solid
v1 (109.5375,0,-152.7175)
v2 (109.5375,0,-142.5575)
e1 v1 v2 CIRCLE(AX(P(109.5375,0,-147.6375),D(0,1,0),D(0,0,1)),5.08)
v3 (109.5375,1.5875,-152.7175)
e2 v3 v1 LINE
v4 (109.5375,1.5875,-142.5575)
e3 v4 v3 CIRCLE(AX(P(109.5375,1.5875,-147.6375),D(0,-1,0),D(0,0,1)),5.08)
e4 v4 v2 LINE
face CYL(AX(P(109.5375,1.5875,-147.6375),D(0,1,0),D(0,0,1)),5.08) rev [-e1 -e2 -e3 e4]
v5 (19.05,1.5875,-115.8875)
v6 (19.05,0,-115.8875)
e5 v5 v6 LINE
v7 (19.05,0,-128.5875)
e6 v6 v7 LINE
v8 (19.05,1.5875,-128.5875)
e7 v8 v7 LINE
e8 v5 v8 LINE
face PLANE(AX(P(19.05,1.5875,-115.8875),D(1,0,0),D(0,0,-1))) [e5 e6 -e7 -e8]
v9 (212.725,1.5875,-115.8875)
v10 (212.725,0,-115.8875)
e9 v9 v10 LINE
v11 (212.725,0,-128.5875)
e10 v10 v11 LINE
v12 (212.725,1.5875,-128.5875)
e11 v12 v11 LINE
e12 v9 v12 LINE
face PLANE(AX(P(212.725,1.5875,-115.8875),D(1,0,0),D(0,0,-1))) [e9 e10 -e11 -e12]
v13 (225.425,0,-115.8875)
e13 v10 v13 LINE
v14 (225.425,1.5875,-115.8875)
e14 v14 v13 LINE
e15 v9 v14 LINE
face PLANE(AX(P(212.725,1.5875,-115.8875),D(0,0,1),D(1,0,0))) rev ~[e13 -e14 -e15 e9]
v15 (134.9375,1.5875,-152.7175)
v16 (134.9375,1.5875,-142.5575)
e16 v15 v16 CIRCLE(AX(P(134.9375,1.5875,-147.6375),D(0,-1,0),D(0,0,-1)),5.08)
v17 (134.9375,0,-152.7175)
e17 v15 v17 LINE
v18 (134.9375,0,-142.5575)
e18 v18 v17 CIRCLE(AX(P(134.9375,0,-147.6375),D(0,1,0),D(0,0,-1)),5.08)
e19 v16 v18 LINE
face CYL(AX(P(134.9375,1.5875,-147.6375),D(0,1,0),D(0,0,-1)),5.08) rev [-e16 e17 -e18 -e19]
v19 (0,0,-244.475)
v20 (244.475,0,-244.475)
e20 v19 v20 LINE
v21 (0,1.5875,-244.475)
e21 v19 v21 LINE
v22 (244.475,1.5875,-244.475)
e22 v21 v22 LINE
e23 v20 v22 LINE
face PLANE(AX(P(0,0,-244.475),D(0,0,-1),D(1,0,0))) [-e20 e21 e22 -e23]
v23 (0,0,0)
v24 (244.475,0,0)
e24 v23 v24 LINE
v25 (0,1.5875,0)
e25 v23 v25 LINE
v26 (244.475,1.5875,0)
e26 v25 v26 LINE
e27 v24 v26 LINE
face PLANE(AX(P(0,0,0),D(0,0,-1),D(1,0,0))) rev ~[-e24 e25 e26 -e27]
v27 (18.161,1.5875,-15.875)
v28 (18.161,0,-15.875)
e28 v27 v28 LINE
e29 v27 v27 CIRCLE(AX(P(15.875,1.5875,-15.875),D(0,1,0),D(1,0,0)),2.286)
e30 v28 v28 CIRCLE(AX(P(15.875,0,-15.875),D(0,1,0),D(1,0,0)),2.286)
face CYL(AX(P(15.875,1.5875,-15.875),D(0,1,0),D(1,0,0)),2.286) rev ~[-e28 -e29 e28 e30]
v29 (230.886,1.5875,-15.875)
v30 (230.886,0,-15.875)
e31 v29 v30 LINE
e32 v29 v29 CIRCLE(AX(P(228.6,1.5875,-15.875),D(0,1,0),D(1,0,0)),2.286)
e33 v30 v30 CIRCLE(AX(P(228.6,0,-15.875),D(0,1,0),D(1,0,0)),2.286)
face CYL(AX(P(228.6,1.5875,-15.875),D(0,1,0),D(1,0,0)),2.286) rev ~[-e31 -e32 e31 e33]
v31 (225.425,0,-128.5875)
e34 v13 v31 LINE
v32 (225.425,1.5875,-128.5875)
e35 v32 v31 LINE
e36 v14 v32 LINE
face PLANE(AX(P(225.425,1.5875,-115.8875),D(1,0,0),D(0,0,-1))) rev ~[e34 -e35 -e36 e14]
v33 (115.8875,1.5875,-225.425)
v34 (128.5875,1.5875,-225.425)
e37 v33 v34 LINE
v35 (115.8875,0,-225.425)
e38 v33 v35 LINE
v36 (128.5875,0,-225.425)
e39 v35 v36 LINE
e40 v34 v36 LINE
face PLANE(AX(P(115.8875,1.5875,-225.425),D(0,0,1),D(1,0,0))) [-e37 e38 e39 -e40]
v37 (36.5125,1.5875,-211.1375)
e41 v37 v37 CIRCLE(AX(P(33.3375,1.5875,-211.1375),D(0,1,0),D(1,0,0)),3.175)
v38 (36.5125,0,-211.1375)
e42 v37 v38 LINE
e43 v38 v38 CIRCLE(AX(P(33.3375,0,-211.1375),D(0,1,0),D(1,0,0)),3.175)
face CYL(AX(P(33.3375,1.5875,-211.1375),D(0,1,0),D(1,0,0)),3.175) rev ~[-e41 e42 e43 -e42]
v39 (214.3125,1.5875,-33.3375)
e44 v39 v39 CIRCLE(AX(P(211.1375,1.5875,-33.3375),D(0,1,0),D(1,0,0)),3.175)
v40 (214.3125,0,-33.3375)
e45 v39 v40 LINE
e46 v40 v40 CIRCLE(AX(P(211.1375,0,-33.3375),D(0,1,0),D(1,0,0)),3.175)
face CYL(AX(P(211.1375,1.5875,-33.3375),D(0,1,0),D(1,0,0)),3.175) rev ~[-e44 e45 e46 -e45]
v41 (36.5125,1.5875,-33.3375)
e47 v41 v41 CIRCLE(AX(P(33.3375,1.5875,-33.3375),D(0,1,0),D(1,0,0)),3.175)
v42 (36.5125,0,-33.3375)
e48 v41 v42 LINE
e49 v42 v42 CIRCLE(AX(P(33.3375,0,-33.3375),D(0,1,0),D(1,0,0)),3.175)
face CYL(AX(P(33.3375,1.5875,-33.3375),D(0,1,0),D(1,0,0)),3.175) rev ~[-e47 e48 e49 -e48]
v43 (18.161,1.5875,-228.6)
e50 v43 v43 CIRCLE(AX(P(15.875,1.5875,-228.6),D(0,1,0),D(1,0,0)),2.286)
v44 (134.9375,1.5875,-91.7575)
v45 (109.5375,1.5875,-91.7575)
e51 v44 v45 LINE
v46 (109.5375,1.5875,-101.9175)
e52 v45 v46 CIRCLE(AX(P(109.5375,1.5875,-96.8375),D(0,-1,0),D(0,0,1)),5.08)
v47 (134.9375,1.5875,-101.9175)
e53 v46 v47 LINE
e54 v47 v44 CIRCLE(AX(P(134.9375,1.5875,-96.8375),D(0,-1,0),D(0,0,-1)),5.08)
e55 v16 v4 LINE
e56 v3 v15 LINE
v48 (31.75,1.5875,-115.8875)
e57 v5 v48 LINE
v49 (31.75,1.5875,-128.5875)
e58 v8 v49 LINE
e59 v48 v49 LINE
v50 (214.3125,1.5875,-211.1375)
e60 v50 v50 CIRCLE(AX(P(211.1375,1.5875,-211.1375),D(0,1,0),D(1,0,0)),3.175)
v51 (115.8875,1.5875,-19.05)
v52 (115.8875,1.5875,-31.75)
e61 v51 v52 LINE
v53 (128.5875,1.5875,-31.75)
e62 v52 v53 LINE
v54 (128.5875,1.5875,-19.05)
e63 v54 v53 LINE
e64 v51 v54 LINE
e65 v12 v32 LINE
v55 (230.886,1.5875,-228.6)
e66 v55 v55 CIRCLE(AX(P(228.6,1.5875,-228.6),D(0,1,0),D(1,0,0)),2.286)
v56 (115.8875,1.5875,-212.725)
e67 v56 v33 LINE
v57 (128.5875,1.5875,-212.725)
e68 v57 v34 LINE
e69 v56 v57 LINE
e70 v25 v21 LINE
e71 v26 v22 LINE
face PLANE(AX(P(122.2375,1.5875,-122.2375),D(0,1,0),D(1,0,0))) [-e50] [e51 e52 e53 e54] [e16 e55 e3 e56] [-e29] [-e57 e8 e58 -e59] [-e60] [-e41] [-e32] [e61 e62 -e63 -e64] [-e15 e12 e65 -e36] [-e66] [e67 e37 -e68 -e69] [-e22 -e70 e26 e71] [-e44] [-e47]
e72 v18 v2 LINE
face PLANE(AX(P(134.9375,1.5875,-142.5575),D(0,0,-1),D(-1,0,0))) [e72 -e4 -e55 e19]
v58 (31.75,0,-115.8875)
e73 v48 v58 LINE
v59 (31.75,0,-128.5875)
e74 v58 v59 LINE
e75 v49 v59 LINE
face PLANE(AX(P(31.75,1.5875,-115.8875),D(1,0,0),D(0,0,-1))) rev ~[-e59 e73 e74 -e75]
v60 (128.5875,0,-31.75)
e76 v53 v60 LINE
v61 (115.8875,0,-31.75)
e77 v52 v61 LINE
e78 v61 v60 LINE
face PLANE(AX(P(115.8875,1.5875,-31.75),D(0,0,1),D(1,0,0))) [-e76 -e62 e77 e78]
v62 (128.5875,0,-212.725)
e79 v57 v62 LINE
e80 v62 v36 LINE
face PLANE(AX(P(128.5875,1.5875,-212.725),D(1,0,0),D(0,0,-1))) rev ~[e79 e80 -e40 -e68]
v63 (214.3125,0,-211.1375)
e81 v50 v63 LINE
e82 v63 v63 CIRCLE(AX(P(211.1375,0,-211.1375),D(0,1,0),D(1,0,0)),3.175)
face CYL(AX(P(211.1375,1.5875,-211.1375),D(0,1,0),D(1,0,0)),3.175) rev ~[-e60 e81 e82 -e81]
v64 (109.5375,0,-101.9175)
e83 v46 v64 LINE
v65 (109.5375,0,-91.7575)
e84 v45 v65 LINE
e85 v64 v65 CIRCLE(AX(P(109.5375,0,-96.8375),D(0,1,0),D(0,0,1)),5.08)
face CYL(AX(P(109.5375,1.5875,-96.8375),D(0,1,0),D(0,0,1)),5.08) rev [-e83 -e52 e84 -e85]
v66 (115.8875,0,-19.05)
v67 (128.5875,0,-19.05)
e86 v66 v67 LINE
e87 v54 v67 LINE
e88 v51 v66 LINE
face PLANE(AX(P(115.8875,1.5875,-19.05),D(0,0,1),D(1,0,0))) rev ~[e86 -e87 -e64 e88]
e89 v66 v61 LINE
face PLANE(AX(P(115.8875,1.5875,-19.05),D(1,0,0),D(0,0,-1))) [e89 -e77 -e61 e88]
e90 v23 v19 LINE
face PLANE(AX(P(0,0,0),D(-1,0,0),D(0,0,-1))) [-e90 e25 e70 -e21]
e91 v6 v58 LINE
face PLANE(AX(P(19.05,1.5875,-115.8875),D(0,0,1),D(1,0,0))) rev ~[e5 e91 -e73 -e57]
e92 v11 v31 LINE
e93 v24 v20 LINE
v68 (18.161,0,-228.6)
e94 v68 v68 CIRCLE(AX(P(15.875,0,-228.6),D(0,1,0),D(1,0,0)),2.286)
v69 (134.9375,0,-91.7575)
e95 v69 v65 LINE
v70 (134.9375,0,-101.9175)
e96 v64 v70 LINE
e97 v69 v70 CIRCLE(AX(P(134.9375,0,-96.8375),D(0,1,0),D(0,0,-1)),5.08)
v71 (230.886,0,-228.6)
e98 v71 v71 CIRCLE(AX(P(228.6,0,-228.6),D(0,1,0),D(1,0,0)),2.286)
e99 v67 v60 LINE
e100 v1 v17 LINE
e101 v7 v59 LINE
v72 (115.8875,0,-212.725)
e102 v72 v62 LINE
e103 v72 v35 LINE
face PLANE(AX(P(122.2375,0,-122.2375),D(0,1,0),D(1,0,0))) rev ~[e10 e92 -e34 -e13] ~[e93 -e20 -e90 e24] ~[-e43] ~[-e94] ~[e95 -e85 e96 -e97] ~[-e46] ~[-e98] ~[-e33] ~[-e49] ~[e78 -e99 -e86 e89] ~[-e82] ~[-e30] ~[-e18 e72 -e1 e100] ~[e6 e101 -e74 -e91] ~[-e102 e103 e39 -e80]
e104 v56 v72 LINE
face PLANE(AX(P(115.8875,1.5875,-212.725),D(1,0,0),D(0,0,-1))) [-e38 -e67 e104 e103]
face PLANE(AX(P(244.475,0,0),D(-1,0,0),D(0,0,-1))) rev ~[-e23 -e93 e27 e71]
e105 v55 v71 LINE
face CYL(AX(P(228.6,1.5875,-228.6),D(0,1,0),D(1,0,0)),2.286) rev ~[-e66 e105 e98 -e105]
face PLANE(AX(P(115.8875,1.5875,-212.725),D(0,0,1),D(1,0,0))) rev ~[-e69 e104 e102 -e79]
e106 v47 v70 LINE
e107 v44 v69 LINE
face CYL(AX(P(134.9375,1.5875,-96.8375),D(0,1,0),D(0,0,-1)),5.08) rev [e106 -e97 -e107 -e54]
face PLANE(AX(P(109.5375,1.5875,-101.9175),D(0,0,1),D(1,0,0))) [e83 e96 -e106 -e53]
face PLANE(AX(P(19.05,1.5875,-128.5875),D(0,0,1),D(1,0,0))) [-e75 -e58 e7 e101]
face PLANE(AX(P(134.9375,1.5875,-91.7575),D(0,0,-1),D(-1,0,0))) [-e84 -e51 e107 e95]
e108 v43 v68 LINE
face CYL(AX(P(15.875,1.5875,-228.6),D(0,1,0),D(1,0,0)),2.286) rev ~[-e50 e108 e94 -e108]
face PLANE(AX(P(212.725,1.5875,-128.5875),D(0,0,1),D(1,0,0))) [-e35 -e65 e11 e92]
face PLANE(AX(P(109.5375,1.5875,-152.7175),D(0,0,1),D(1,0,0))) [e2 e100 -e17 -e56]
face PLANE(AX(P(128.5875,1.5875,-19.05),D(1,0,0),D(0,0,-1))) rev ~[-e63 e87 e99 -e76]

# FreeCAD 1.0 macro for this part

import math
import FreeCAD as App
import Part
import Sketcher
Q = App.Units.Quantity


def add_polygon(sketch, points):
    """Adds a closed chain of lines whose ends are joined by coincident constraints."""
    first, n = sketch.GeometryCount, len(points)
    for a, b in zip(points, points[1:] + points[:1]):
        sketch.addGeometry(Part.LineSegment(App.Vector(*a, 0), App.Vector(*b, 0)), False)
    for i in range(n):
        sketch.addConstraint(Sketcher.Constraint("Coincident", first + i, 2, first + (i + 1) % n, 1))

doc = App.newDocument("Part")
body = doc.addObject("PartDesign::Body", "Body")

sketch1 = body.newObject("Sketcher::SketchObject", "Sketch")
sketch1.AttachmentSupport = (doc.getObject("XZ_Plane"), [""])
sketch1.MapMode = "FlatFace"
add_polygon(sketch1, [(0, -244), (0, 0), (244, 0), (244, -244)])
sketch1.addConstraint([
    Sketcher.Constraint("Vertical", 0),
    Sketcher.Constraint("Horizontal", 1),
    Sketcher.Constraint("Vertical", 2),
    Sketcher.Constraint("Horizontal", 3),
    Sketcher.Constraint("Coincident", 0, 2, -1, 1),
    Sketcher.Constraint("Equal", 3, 0),
    Sketcher.Constraint("DistanceX", 1, 1, 1, 2, Q("9.625 in")),
])
pad1 = body.newObject("PartDesign::Pad", "Pad")
pad1.Profile = sketch1
pad1.Length = Q("0.0625 in")
pad1.Reversed = True

sketch2 = body.newObject("Sketcher::SketchObject", "Sketch001")
sketch2.AttachmentSupport = (doc.getObject("XZ_Plane"), [""])
sketch2.MapMode = "FlatFace"
sketch2.AttachmentOffset = App.Placement(App.Vector(0, 0, -0.0625 * 25.4), App.Rotation())
sketch2.addGeometry([
    Part.Circle(App.Vector(211.1, -33.3, 0), App.Vector(0, 0, 1), 3.2),
    Part.Circle(App.Vector(33.3, -33.3, 0), App.Vector(0, 0, 1), 3.2),
    Part.Circle(App.Vector(33.3, -211.1, 0), App.Vector(0, 0, 1), 3.2),
    Part.Circle(App.Vector(211.1, -211.1, 0), App.Vector(0, 0, 1), 3.2),
    Part.Circle(App.Vector(228.6, -15.9, 0), App.Vector(0, 0, 1), 2.3),
    Part.Circle(App.Vector(15.9, -15.9, 0), App.Vector(0, 0, 1), 2.3),
    Part.Circle(App.Vector(15.9, -228.6, 0), App.Vector(0, 0, 1), 2.3),
    Part.Circle(App.Vector(228.6, -228.6, 0), App.Vector(0, 0, 1), 2.3),
], False)
sketch2.addConstraint([
    Sketcher.Constraint("Equal", 0, 1),
    Sketcher.Constraint("Equal", 1, 2),
    Sketcher.Constraint("Equal", 2, 3),
    Sketcher.Constraint("Equal", 4, 5),
    Sketcher.Constraint("Equal", 5, 6),
    Sketcher.Constraint("Equal", 6, 7),
    Sketcher.Constraint("Horizontal", 0, 3, 1, 3),
    Sketcher.Constraint("Horizontal", 2, 3, 3, 3),
    Sketcher.Constraint("Horizontal", 4, 3, 5, 3),
    Sketcher.Constraint("Horizontal", 6, 3, 7, 3),
    Sketcher.Constraint("Vertical", 1, 3, 2, 3),
    Sketcher.Constraint("Vertical", 0, 3, 3, 3),
    Sketcher.Constraint("Vertical", 5, 3, 6, 3),
    Sketcher.Constraint("Vertical", 4, 3, 7, 3),
    Sketcher.Constraint("Diameter", 0, Q("0.25 in")),
    Sketcher.Constraint("Diameter", 4, Q("0.18 in")),
    Sketcher.Constraint("DistanceX", -1, 1, 4, 3, Q("9 in")),
    Sketcher.Constraint("DistanceY", 6, 3, -1, 1, Q("9 in")),
    Sketcher.Constraint("DistanceX", 1, 3, 0, 3, Q("7 in")),
    Sketcher.Constraint("DistanceY", 2, 3, 1, 3, Q("7 in")),
    Sketcher.Constraint("DistanceX", -1, 1, 0, 3, Q("8.3125 in")),
    Sketcher.Constraint("DistanceY", 0, 3, -1, 1, Q("1.3125 in")),
    Sketcher.Constraint("DistanceY", 4, 3, -1, 1, Q("0.625 in")),
    Sketcher.Constraint("DistanceX", -1, 1, 5, 3, Q("0.625 in")),
])
pocket1 = body.newObject("PartDesign::Pocket", "Pocket")
pocket1.Profile = sketch2
pocket1.Type = "ThroughAll"
pocket1.Reversed = True

sketch3 = body.newObject("Sketcher::SketchObject", "Sketch002")
sketch3.AttachmentSupport = (doc.getObject("XZ_Plane"), [""])
sketch3.MapMode = "FlatFace"
sketch3.AttachmentOffset = App.Placement(App.Vector(0, 0, -0.0625 * 25.4), App.Rotation())
add_polygon(sketch3, [(116, -32), (116, -19), (129, -19), (129, -32)])
add_polygon(sketch3, [(19, -129), (19, -116), (32, -116), (32, -129)])
add_polygon(sketch3, [(116, -225), (116, -213), (129, -213), (129, -225)])
add_polygon(sketch3, [(213, -129), (213, -116), (225, -116), (225, -129)])
sketch3.addConstraint([
    Sketcher.Constraint("Vertical", 0),
    Sketcher.Constraint("Horizontal", 1),
    Sketcher.Constraint("Vertical", 2),
    Sketcher.Constraint("Horizontal", 3),
    Sketcher.Constraint("Vertical", 4),
    Sketcher.Constraint("Horizontal", 5),
    Sketcher.Constraint("Vertical", 6),
    Sketcher.Constraint("Horizontal", 7),
    Sketcher.Constraint("Vertical", 8),
    Sketcher.Constraint("Horizontal", 9),
    Sketcher.Constraint("Vertical", 10),
    Sketcher.Constraint("Horizontal", 11),
    Sketcher.Constraint("Vertical", 12),
    Sketcher.Constraint("Horizontal", 13),
    Sketcher.Constraint("Vertical", 14),
    Sketcher.Constraint("Horizontal", 15),
    Sketcher.Constraint("Horizontal", 5, 2, 12, 2),
    Sketcher.Constraint("Horizontal", 7, 2, 14, 2),
    Sketcher.Constraint("Vertical", 3, 2, 8, 2),
    Sketcher.Constraint("Vertical", 2, 2, 9, 2),
    Sketcher.Constraint("Equal", 3, 5),
    Sketcher.Constraint("Equal", 11, 13),
    Sketcher.Constraint("Equal", 15, 0),
    Sketcher.Constraint("Equal", 2, 4),
    Sketcher.Constraint("Equal", 6, 8),
    Sketcher.Constraint("DistanceX", 1, 1, 1, 2, Q("0.5 in")),
    Sketcher.Constraint("DistanceY", 0, 2, -1, 1, Q("0.75 in")),
    Sketcher.Constraint("DistanceX", -1, 1, 4, 2, Q("0.75 in")),
    Sketcher.Constraint("DistanceX", -1, 1, 0, 2, Q("4.5625 in")),
    Sketcher.Constraint("DistanceY", 4, 2, -1, 1, Q("4.5625 in")),
    Sketcher.Constraint("DistanceY", 8, 2, -1, 1, Q("8.375 in")),
    Sketcher.Constraint("DistanceX", -1, 1, 12, 2, Q("8.375 in")),
])
pocket2 = body.newObject("PartDesign::Pocket", "Pocket001")
pocket2.Profile = sketch3
pocket2.Type = "ThroughAll"
pocket2.Reversed = True

sketch4 = body.newObject("Sketcher::SketchObject", "Sketch003")
sketch4.AttachmentSupport = (doc.getObject("XZ_Plane"), [""])
sketch4.MapMode = "FlatFace"
sketch4.AttachmentOffset = App.Placement(App.Vector(0, 0, -0.0625 * 25.4), App.Rotation())
sketch4.addGeometry([
    Part.LineSegment(App.Vector(135, -102, 0), App.Vector(110, -102, 0)),
    Part.ArcOfCircle(Part.Circle(App.Vector(110, -97, 0), App.Vector(0, 0, 1), 5), math.radians(90), math.radians(270)),
    Part.LineSegment(App.Vector(110, -92, 0), App.Vector(135, -92, 0)),
    Part.ArcOfCircle(Part.Circle(App.Vector(135, -97, 0), App.Vector(0, 0, 1), 5), math.radians(-90), math.radians(90)),
    Part.LineSegment(App.Vector(135, -153, 0), App.Vector(110, -153, 0)),
    Part.ArcOfCircle(Part.Circle(App.Vector(110, -148, 0), App.Vector(0, 0, 1), 5), math.radians(90), math.radians(270)),
    Part.LineSegment(App.Vector(110, -143, 0), App.Vector(135, -143, 0)),
    Part.ArcOfCircle(Part.Circle(App.Vector(135, -148, 0), App.Vector(0, 0, 1), 5), math.radians(-90), math.radians(90)),
], False)
sketch4.addConstraint([
    Sketcher.Constraint("Tangent", 0, 2, 1, 2),
    Sketcher.Constraint("Tangent", 1, 1, 2, 1),
    Sketcher.Constraint("Tangent", 2, 2, 3, 2),
    Sketcher.Constraint("Tangent", 3, 1, 0, 1),
    Sketcher.Constraint("Tangent", 4, 2, 5, 2),
    Sketcher.Constraint("Tangent", 5, 1, 6, 1),
    Sketcher.Constraint("Tangent", 6, 2, 7, 2),
    Sketcher.Constraint("Tangent", 7, 1, 4, 1),
    Sketcher.Constraint("Horizontal", 0),
    Sketcher.Constraint("Horizontal", 2),
    Sketcher.Constraint("Horizontal", 4),
    Sketcher.Constraint("Horizontal", 6),
    Sketcher.Constraint("Equal", 3, 5),
    Sketcher.Constraint("Vertical", 1, 3, 5, 3),
    Sketcher.Constraint("Vertical", 3, 3, 7, 3),
    Sketcher.Constraint("Radius", 1, Q("0.2 in")),
    Sketcher.Constraint("DistanceX", 0, 2, 0, 1, Q("1 in")),
    Sketcher.Constraint("DistanceY", 5, 3, 1, 3, Q("2 in")),
    Sketcher.Constraint("DistanceX", -1, 1, 1, 3, Q("4.3125 in")),
    Sketcher.Constraint("DistanceY", 1, 3, -1, 1, Q("3.8125 in")),
])
pocket3 = body.newObject("PartDesign::Pocket", "Pocket002")
pocket3.Profile = sketch4
pocket3.Type = "ThroughAll"
pocket3.Reversed = True

doc.recompute()
